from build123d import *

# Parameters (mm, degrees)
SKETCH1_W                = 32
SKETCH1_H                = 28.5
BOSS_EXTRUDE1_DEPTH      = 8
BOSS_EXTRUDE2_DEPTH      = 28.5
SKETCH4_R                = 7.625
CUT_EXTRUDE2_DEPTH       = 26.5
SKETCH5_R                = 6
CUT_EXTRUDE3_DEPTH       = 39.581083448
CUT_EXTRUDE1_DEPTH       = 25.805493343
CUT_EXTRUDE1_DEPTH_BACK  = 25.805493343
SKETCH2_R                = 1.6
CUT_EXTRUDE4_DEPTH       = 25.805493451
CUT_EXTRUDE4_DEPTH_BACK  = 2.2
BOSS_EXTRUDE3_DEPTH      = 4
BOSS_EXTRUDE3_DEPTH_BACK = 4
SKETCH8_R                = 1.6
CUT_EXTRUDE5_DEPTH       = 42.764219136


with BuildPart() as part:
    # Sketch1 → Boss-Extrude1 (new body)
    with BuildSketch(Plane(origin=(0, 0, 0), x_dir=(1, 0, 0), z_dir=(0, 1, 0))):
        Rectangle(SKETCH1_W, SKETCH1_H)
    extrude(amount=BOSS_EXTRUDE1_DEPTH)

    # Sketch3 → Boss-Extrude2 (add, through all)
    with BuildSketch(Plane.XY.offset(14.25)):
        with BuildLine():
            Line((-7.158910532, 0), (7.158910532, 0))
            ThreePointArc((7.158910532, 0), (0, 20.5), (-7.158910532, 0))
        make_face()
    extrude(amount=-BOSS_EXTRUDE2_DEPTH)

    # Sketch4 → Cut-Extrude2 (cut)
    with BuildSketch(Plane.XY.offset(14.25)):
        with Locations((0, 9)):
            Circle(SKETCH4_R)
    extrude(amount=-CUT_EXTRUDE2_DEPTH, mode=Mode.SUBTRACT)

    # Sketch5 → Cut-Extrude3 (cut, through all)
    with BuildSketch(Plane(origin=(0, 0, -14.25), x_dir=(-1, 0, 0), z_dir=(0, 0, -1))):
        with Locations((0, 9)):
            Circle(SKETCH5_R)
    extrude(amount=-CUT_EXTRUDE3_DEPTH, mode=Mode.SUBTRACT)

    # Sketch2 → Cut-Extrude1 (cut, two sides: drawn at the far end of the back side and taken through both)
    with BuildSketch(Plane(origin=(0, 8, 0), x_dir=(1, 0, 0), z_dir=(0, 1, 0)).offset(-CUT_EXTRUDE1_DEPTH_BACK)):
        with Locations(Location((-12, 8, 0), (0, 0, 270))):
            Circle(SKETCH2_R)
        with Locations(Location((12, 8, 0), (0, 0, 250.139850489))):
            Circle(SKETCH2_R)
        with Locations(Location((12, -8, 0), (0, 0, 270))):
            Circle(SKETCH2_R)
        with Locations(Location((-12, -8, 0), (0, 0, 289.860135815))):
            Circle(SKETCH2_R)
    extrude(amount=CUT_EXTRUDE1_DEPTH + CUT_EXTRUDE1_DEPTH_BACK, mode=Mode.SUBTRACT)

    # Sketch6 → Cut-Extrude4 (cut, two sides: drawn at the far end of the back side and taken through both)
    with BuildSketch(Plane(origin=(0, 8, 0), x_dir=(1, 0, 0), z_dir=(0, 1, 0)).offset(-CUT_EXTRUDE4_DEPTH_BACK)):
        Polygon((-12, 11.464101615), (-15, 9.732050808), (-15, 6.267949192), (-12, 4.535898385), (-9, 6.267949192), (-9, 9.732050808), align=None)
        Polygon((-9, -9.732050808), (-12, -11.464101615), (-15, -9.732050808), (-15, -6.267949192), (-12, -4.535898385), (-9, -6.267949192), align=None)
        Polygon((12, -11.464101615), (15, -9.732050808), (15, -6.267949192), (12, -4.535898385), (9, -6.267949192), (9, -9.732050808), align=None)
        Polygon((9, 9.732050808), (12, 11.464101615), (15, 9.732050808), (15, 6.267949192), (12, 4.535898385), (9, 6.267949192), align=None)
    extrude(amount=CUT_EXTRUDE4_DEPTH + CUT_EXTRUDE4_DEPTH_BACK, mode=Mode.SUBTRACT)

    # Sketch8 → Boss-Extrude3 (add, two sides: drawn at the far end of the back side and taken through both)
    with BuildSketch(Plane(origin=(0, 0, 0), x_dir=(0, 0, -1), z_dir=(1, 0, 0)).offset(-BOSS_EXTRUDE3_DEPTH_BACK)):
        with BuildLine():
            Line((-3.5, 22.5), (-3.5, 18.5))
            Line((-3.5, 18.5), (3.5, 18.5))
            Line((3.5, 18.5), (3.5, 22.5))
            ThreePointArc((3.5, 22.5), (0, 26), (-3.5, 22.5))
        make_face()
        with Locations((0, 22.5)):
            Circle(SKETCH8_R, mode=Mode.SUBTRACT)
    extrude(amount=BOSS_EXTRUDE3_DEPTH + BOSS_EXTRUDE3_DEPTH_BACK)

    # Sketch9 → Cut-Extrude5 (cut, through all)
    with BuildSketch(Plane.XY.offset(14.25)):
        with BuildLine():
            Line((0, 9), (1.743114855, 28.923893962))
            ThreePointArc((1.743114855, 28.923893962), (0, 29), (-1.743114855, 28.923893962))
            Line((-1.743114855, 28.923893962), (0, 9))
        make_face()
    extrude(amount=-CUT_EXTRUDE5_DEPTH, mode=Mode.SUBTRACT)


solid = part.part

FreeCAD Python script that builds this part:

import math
import FreeCAD as App
import Part
import Sketcher
from FreeCAD import Vector
Q = App.Units.Quantity

doc = App.newDocument("Part")
body = doc.addObject("PartDesign::Body", "Body")

sketch1 = doc.addObject("Sketcher::SketchObject", "Sketch")
body.addObject(sketch1)
sketch1.AttachmentSupport = (doc.XZ_Plane, [""])
sketch1.MapMode = "FlatFace"
sketch1.addGeometry([
    Part.LineSegment(Vector(-16, -14, 0), Vector(-16, 14, 0)),
    Part.LineSegment(Vector(-16, 14, 0), Vector(16, 14, 0)),
    Part.LineSegment(Vector(16, 14, 0), Vector(16, -14, 0)),
    Part.LineSegment(Vector(16, -14, 0), Vector(-16, -14, 0)),
], False)
sketch1.addConstraint([
    Sketcher.Constraint("Coincident", 0, 2, 1, 1),
    Sketcher.Constraint("Coincident", 1, 2, 2, 1),
    Sketcher.Constraint("Coincident", 2, 2, 3, 1),
    Sketcher.Constraint("Coincident", 3, 2, 0, 1),
    Sketcher.Constraint("Vertical", 0),
    Sketcher.Constraint("Horizontal", 1),
    Sketcher.Constraint("Vertical", 2),
    Sketcher.Constraint("Horizontal", 3),
    Sketcher.Constraint("Symmetric", 0, 2, 2, 2, -1, 1),
    Sketcher.Constraint("DistanceX", 1, 1, 1, 2, Q("32 mm")),
    Sketcher.Constraint("DistanceY", 0, 1, 0, 2, Q("28.5 mm")),
])
pad1 = doc.addObject("PartDesign::Pad", "Pad")
body.addObject(pad1)
pad1.Profile = sketch1
pad1.Length = 8
pad1.Reversed = True

sketch2 = doc.addObject("Sketcher::SketchObject", "Sketch001")
body.addObject(sketch2)
sketch2.AttachmentSupport = (doc.XY_Plane, [""])
sketch2.MapMode = "FlatFace"
sketch2.AttachmentOffset = App.Placement(Vector(0, 0, 14.25), App.Rotation())
sketch2.addGeometry([
    Part.LineSegment(Vector(-7, 0, 0), Vector(7, 0, 0)),
    Part.ArcOfCircle(Part.Circle(Vector(0, 9, 0), Vector(0, 0, 1), 12), math.radians(-52), math.radians(232)),
], False)
sketch2.addConstraint([
    Sketcher.Constraint("Coincident", 0, 1, 1, 2),
    Sketcher.Constraint("Coincident", 1, 1, 0, 2),
    Sketcher.Constraint("Horizontal", 0),
    Sketcher.Constraint("Symmetric", 0, 1, 1, 1, -1, 1),
    Sketcher.Constraint("Radius", 1, Q("11.5 mm")),
    Sketcher.Constraint("DistanceY", -1, 1, 1, 3, Q("9 mm")),
])
pad2 = doc.addObject("PartDesign::Pad", "Pad001")
body.addObject(pad2)
pad2.Profile = sketch2
pad2.Length = 28.5
pad2.Reversed = True

sketch3 = doc.addObject("Sketcher::SketchObject", "Sketch002")
body.addObject(sketch3)
sketch3.AttachmentSupport = (doc.XY_Plane, [""])
sketch3.MapMode = "FlatFace"
sketch3.AttachmentOffset = App.Placement(Vector(0, 0, 14.25), App.Rotation())
sketch3.addGeometry(Part.Circle(Vector(0, 9, 0), Vector(0, 0, 1), 8), False)
sketch3.addConstraint([
    Sketcher.Constraint("PointOnObject", 0, 3, -2),
    Sketcher.Constraint("Diameter", 0, Q("15.25 mm")),
    Sketcher.Constraint("DistanceY", -1, 1, 0, 3, Q("9 mm")),
])
pocket1 = doc.addObject("PartDesign::Pocket", "Pocket")
body.addObject(pocket1)
pocket1.Profile = sketch3
pocket1.Length = 26.5

sketch4 = doc.addObject("Sketcher::SketchObject", "Sketch003")
body.addObject(sketch4)
sketch4.AttachmentSupport = (doc.XY_Plane, [""])
sketch4.MapMode = "FlatFace"
sketch4.AttachmentOffset = App.Placement(Vector(0, 0, -14.25), App.Rotation())
sketch4.addGeometry(Part.Circle(Vector(0, 9, 0), Vector(0, 0, 1), 6), False)
sketch4.addConstraint([
    Sketcher.Constraint("PointOnObject", 0, 3, -2),
    Sketcher.Constraint("Diameter", 0, Q("12 mm")),
    Sketcher.Constraint("DistanceY", -1, 1, 0, 3, Q("9 mm")),
])
pocket2 = doc.addObject("PartDesign::Pocket", "Pocket001")
body.addObject(pocket2)
pocket2.Profile = sketch4
pocket2.Type = "ThroughAll"
pocket2.Reversed = True

sketch5 = doc.addObject("Sketcher::SketchObject", "Sketch004")
body.addObject(sketch5)
sketch5.AttachmentSupport = (doc.XZ_Plane, [""])
sketch5.MapMode = "FlatFace"
sketch5.AttachmentOffset = App.Placement(Vector(0, 0, -8), App.Rotation())
sketch5.addGeometry([
    Part.Circle(Vector(-12, -8, 0), Vector(0, 0, 1), 1.6),
    Part.Circle(Vector(12, -8, 0), Vector(0, 0, 1), 1.6),
    Part.Circle(Vector(12, 8, 0), Vector(0, 0, 1), 1.6),
    Part.Circle(Vector(-12, 8, 0), Vector(0, 0, 1), 1.6),
], False)
sketch5.addConstraint([
    Sketcher.Constraint("Equal", 0, 1),
    Sketcher.Constraint("Equal", 1, 2),
    Sketcher.Constraint("Equal", 2, 3),
    Sketcher.Constraint("Symmetric", 0, 3, 2, 3, -1, 1),
    Sketcher.Constraint("Symmetric", 1, 3, 3, 3, -1, 1),
    Sketcher.Constraint("Symmetric", 0, 3, 1, 3, -2),
    Sketcher.Constraint("Diameter", 0, Q("3.2 mm")),
    Sketcher.Constraint("DistanceX", 0, 3, -1, 1, Q("12 mm")),
    Sketcher.Constraint("DistanceY", 0, 3, -1, 1, Q("8 mm")),
])
pocket3 = doc.addObject("PartDesign::Pocket", "Pocket002")
body.addObject(pocket3)
pocket3.Profile = sketch5
pocket3.Type = "ThroughAll"
pocket3.Midplane = True

sketch6 = doc.addObject("Sketcher::SketchObject", "Sketch005")
body.addObject(sketch6)
sketch6.AttachmentSupport = (doc.XZ_Plane, [""])
sketch6.MapMode = "FlatFace"
sketch6.AttachmentOffset = App.Placement(Vector(0, 0, -8), App.Rotation())
sketch6.addGeometry([
    Part.LineSegment(Vector(-12, -11.5, 0), Vector(-15, -9.7, 0)),
    Part.LineSegment(Vector(-15, -9.7, 0), Vector(-15, -6.3, 0)),
    Part.LineSegment(Vector(-15, -6.3, 0), Vector(-12, -4.5, 0)),
    Part.LineSegment(Vector(-12, -4.5, 0), Vector(-9, -6.3, 0)),
    Part.LineSegment(Vector(-9, -6.3, 0), Vector(-9, -9.7, 0)),
    Part.LineSegment(Vector(-9, -9.7, 0), Vector(-12, -11.5, 0)),
    Part.LineSegment(Vector(-12, 11.5, 0), Vector(-9, 9.7, 0)),
    Part.LineSegment(Vector(-9, 9.7, 0), Vector(-9, 6.3, 0)),
    Part.LineSegment(Vector(-9, 6.3, 0), Vector(-12, 4.5, 0)),
    Part.LineSegment(Vector(-12, 4.5, 0), Vector(-15, 6.3, 0)),
    Part.LineSegment(Vector(-15, 6.3, 0), Vector(-15, 9.7, 0)),
    Part.LineSegment(Vector(-15, 9.7, 0), Vector(-12, 11.5, 0)),
    Part.LineSegment(Vector(12, 11.5, 0), Vector(15, 9.7, 0)),
    Part.LineSegment(Vector(15, 9.7, 0), Vector(15, 6.3, 0)),
    Part.LineSegment(Vector(15, 6.3, 0), Vector(12, 4.5, 0)),
    Part.LineSegment(Vector(12, 4.5, 0), Vector(9, 6.3, 0)),
    Part.LineSegment(Vector(9, 6.3, 0), Vector(9, 9.7, 0)),
    Part.LineSegment(Vector(9, 9.7, 0), Vector(12, 11.5, 0)),
    Part.LineSegment(Vector(12, -11.5, 0), Vector(9, -9.7, 0)),
    Part.LineSegment(Vector(9, -9.7, 0), Vector(9, -6.3, 0)),
    Part.LineSegment(Vector(9, -6.3, 0), Vector(12, -4.5, 0)),
    Part.LineSegment(Vector(12, -4.5, 0), Vector(15, -6.3, 0)),
    Part.LineSegment(Vector(15, -6.3, 0), Vector(15, -9.7, 0)),
    Part.LineSegment(Vector(15, -9.7, 0), Vector(12, -11.5, 0)),
], False)
sketch6.addConstraint([
    Sketcher.Constraint("Coincident", 0, 2, 1, 1),
    Sketcher.Constraint("Coincident", 1, 2, 2, 1),
    Sketcher.Constraint("Coincident", 2, 2, 3, 1),
    Sketcher.Constraint("Coincident", 3, 2, 4, 1),
    Sketcher.Constraint("Coincident", 4, 2, 5, 1),
    Sketcher.Constraint("Coincident", 5, 2, 0, 1),
    Sketcher.Constraint("Coincident", 6, 2, 7, 1),
    Sketcher.Constraint("Coincident", 7, 2, 8, 1),
    Sketcher.Constraint("Coincident", 8, 2, 9, 1),
    Sketcher.Constraint("Coincident", 9, 2, 10, 1),
    Sketcher.Constraint("Coincident", 10, 2, 11, 1),
    Sketcher.Constraint("Coincident", 11, 2, 6, 1),
    Sketcher.Constraint("Coincident", 12, 2, 13, 1),
    Sketcher.Constraint("Coincident", 13, 2, 14, 1),
    Sketcher.Constraint("Coincident", 14, 2, 15, 1),
    Sketcher.Constraint("Coincident", 15, 2, 16, 1),
    Sketcher.Constraint("Coincident", 16, 2, 17, 1),
    Sketcher.Constraint("Coincident", 17, 2, 12, 1),
    Sketcher.Constraint("Coincident", 18, 2, 19, 1),
    Sketcher.Constraint("Coincident", 19, 2, 20, 1),
    Sketcher.Constraint("Coincident", 20, 2, 21, 1),
    Sketcher.Constraint("Coincident", 21, 2, 22, 1),
    Sketcher.Constraint("Coincident", 22, 2, 23, 1),
    Sketcher.Constraint("Coincident", 23, 2, 18, 1),
    Sketcher.Constraint("Vertical", 1),
    Sketcher.Constraint("Vertical", 4),
    Sketcher.Constraint("Vertical", 7),
    Sketcher.Constraint("Vertical", 10),
    Sketcher.Constraint("Vertical", 13),
    Sketcher.Constraint("Vertical", 16),
    Sketcher.Constraint("Vertical", 19),
    Sketcher.Constraint("Vertical", 22),
    Sketcher.Constraint("Symmetric", 0, 2, 12, 2, -1, 1),
    Sketcher.Constraint("Symmetric", 2, 2, 14, 2, -1, 1),
    Sketcher.Constraint("Symmetric", 3, 2, 15, 2, -1, 1),
    Sketcher.Constraint("Symmetric", 5, 2, 17, 2, -1, 1),
    Sketcher.Constraint("Symmetric", 6, 2, 18, 2, -1, 1),
    Sketcher.Constraint("Symmetric", 8, 2, 20, 2, -1, 1),
    Sketcher.Constraint("Symmetric", 9, 2, 21, 2, -1, 1),
    Sketcher.Constraint("Symmetric", 11, 2, 23, 2, -1, 1),
    Sketcher.Constraint("Symmetric", 10, 2, 12, 2, -2),
    Sketcher.Constraint("Symmetric", 8, 2, 14, 2, -2),
    Sketcher.Constraint("Symmetric", 7, 2, 15, 2, -2),
    Sketcher.Constraint("Symmetric", 11, 2, 17, 2, -2),
    Sketcher.Constraint("Parallel", 0, 3),
    Sketcher.Constraint("Parallel", 2, 5),
    Sketcher.Constraint("Parallel", 3, 6),
    Sketcher.Constraint("Parallel", 5, 8),
    Sketcher.Constraint("Parallel", 6, 9),
    Sketcher.Constraint("Parallel", 11, 14),
    Sketcher.Constraint("Parallel", 14, 17),
    Sketcher.Constraint("Parallel", 17, 20),
    Sketcher.Constraint("Parallel", 20, 23),
    Sketcher.Constraint("Horizontal", 1, 2, 3, 2),
    Sketcher.Constraint("Horizontal", 0, 2, 4, 2),
    Sketcher.Constraint("Angle", 0, Q("150 deg")),
    Sketcher.Constraint("DistanceX", 0, 2, -1, 1, Q("15 mm")),
    Sketcher.Constraint("DistanceX", 2, 2, -1, 1, Q("12 mm")),
    Sketcher.Constraint("DistanceY", 3, 2, 6, 2, Q("16 mm")),
    Sketcher.Constraint("DistanceY", 1, 1, 1, 2, Q("3.464102 mm")),
])
pocket4 = doc.addObject("PartDesign::Pocket", "Pocket003")
body.addObject(pocket4)
pocket4.Profile = sketch6
pocket4.Type = "TwoLengths"
pocket4.Length = 25.805493
pocket4.Length2 = 2.2

sketch7 = doc.addObject("Sketcher::SketchObject", "Sketch006")
body.addObject(sketch7)
sketch7.AttachmentSupport = (doc.YZ_Plane, [""])
sketch7.MapMode = "FlatFace"
sketch7.addGeometry([
    Part.LineSegment(Vector(22.5, 3.5, 0), Vector(18.5, 3.5, 0)),
    Part.LineSegment(Vector(18.5, 3.5, 0), Vector(18.5, -3.5, 0)),
    Part.LineSegment(Vector(18.5, -3.5, 0), Vector(22.5, -3.5, 0)),
    Part.ArcOfCircle(Part.Circle(Vector(22.5, 0, 0), Vector(0, 0, 1), 3.5), math.radians(-90), math.radians(90)),
    Part.Circle(Vector(22.5, 0, 0), Vector(0, 0, 1), 1.6),
], False)
sketch7.addConstraint([
    Sketcher.Constraint("Coincident", 0, 2, 1, 1),
    Sketcher.Constraint("Coincident", 1, 2, 2, 1),
    Sketcher.Constraint("Tangent", 2, 2, 3, 1),
    Sketcher.Constraint("Tangent", 3, 2, 0, 1),
    Sketcher.Constraint("Horizontal", 0),
    Sketcher.Constraint("Vertical", 1),
    Sketcher.Constraint("Horizontal", 2),
    Sketcher.Constraint("Coincident", 4, 3, 3, 3),
    Sketcher.Constraint("PointOnObject", 3, 3, -1),
    Sketcher.Constraint("Diameter", 4, Q("3.2 mm")),
    Sketcher.Constraint("Radius", 3, Q("3.5 mm")),
    Sketcher.Constraint("DistanceX", 0, 2, 0, 1, Q("4 mm")),
    Sketcher.Constraint("DistanceX", -1, 1, 3, 3, Q("22.5 mm")),
])
pad3 = doc.addObject("PartDesign::Pad", "Pad002")
body.addObject(pad3)
pad3.Profile = sketch7
pad3.Type = "TwoLengths"
pad3.Length = 4
pad3.Length2 = 4

sketch8 = doc.addObject("Sketcher::SketchObject", "Sketch007")
body.addObject(sketch8)
sketch8.AttachmentSupport = (doc.XY_Plane, [""])
sketch8.MapMode = "FlatFace"
sketch8.AttachmentOffset = App.Placement(Vector(0, 0, 14.25), App.Rotation())
sketch8.addGeometry([
    Part.LineSegment(Vector(0, 9, 0), Vector(1.7, 28.9, 0)),
    Part.ArcOfCircle(Part.Circle(Vector(0, 9, 0), Vector(0, 0, 1), 20), math.radians(85), math.radians(95)),
    Part.LineSegment(Vector(-1.7, 28.9, 0), Vector(0, 9, 0)),
], False)
sketch8.addConstraint([
    Sketcher.Constraint("Coincident", 0, 2, 1, 1),
    Sketcher.Constraint("Coincident", 1, 2, 2, 1),
    Sketcher.Constraint("Coincident", 2, 2, 0, 1),
    Sketcher.Constraint("Coincident", 2, 2, 1, 3),
    Sketcher.Constraint("Symmetric", 0, 2, 1, 2, -2),
    Sketcher.Constraint("Radius", 1, Q("20 mm")),
    Sketcher.Constraint("Angle", 0, Q("85 deg")),
    Sketcher.Constraint("DistanceY", -1, 1, 1, 3, Q("9 mm")),
])
pocket5 = doc.addObject("PartDesign::Pocket", "Pocket004")
body.addObject(pocket5)
pocket5.Profile = sketch8
pocket5.Type = "ThroughAll"

doc.recompute()
